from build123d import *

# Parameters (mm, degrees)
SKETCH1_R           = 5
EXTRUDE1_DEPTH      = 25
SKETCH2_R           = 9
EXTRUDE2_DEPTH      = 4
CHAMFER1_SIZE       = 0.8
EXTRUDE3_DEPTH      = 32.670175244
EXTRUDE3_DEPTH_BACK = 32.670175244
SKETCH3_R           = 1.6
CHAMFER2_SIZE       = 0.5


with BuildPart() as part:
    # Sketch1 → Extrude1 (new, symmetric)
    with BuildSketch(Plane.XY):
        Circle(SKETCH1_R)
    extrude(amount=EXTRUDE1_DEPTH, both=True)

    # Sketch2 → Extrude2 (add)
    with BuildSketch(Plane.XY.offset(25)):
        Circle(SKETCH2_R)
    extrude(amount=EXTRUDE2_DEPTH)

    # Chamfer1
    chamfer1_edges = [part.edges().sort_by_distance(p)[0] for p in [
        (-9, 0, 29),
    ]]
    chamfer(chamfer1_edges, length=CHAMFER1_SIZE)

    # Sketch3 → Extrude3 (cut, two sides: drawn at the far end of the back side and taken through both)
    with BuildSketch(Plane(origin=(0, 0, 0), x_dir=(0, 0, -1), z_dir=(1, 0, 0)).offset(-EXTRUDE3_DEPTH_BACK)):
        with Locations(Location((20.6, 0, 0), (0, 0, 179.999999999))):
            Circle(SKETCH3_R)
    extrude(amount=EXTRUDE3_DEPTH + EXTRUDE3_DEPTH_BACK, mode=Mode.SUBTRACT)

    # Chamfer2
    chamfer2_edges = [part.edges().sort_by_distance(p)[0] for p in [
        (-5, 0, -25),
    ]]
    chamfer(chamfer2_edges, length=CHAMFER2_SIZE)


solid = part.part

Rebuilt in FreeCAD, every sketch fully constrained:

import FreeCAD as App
import Part
import Sketcher


def edges_at(feature, points):
    """Names of the edges that pass closest to the given points."""
    edges = feature.Shape.Edges
    near = lambda p: min(range(len(edges)), key=lambda i: edges[i].distToShape(Part.Vertex(*p))[0])
    return sorted({f"Edge{near(p) + 1}" for p in points})

doc = App.newDocument("Part")
params = doc.addObject("Spreadsheet::Sheet", "Params")
for row, (alias, value) in enumerate([
    ("sketch1_diameter", "10 mm"),
    ("pad1_length", "50 mm"),
    ("sketch2_diameter", "18 mm"),
    ("pad2_length", "4 mm"),
    ("chamfer_size", "0.8 mm"),
    ("sketch3_diameter", "3.2 mm"),
    ("chamfer2_size", "0.5 mm"),
], start=1):
    params.set(f"A{row}", alias)
    params.set(f"B{row}", "=" + value)
    params.setAlias(f"B{row}", alias)

body = doc.addObject("PartDesign::Body", "Body")

# Sketch on XY plane
sketch1 = doc.addObject("Sketcher::SketchObject", "Sketch")
body.addObject(sketch1)
sketch1.AttachmentSupport = (doc.XY_Plane, [""])
sketch1.MapMode = "FlatFace"
sketch1.addGeometry(Part.Circle(App.Vector(0, 0, 0), App.Vector(0, 0, 1), 5), False)
sketch1.addConstraint([
    Sketcher.Constraint("Coincident", 0, 3, -1, 1),
    Sketcher.Constraint("Diameter", 0, 10.0),
])
sketch1.setExpression("Constraints[1]", "Params.sketch1_diameter")
pad1 = doc.addObject("PartDesign::Pad", "Pad")
body.addObject(pad1)
pad1.Profile = sketch1
pad1.setExpression("Length", "Params.pad1_length")
pad1.Midplane = True

# Sketch on XY plane
sketch2 = doc.addObject("Sketcher::SketchObject", "Sketch001")
body.addObject(sketch2)
sketch2.AttachmentSupport = (doc.XY_Plane, [""])
sketch2.MapMode = "FlatFace"
sketch2.AttachmentOffset = App.Placement(App.Vector(0, 0, 25), App.Rotation())
sketch2.addGeometry(Part.Circle(App.Vector(0, 0, 0), App.Vector(0, 0, 1), 9), False)
sketch2.addConstraint([
    Sketcher.Constraint("Coincident", 0, 3, -1, 1),
    Sketcher.Constraint("Diameter", 0, 18.0),
])
sketch2.setExpression("Constraints[1]", "Params.sketch2_diameter")
pad2 = doc.addObject("PartDesign::Pad", "Pad001")
body.addObject(pad2)
pad2.Profile = sketch2
pad2.setExpression("Length", "Params.pad2_length")
doc.recompute()

chamfer = doc.addObject("PartDesign::Chamfer", "Chamfer")
body.addObject(chamfer)
chamfer.Base = (pad2, edges_at(pad2, [(-9, 0, 29)]))
chamfer.setExpression("Size", "Params.chamfer_size")

# Sketch on YZ plane
sketch3 = doc.addObject("Sketcher::SketchObject", "Sketch002")
body.addObject(sketch3)
sketch3.AttachmentSupport = (doc.YZ_Plane, [""])
sketch3.MapMode = "FlatFace"
sketch3.addGeometry(Part.Circle(App.Vector(0, -20.6, 0), App.Vector(0, 0, 1), 1.6), False)
sketch3.addConstraint([
    Sketcher.Constraint("PointOnObject", 0, 3, -2),
    Sketcher.Constraint("Diameter", 0, 3.2),
    Sketcher.Constraint("DistanceY", 0, 3, -1, 1, 20.6),
])
sketch3.setExpression("Constraints[1]", "Params.sketch3_diameter")
pocket1 = doc.addObject("PartDesign::Pocket", "Pocket")
body.addObject(pocket1)
pocket1.Profile = sketch3
pocket1.Type = "ThroughAll"
pocket1.Midplane = True
doc.recompute()

chamfer2 = doc.addObject("PartDesign::Chamfer", "Chamfer001")
body.addObject(chamfer2)
chamfer2.Base = (pocket1, edges_at(pocket1, [(-5, 0, -25)]))
chamfer2.setExpression("Size", "Params.chamfer2_size")

doc.recompute()
